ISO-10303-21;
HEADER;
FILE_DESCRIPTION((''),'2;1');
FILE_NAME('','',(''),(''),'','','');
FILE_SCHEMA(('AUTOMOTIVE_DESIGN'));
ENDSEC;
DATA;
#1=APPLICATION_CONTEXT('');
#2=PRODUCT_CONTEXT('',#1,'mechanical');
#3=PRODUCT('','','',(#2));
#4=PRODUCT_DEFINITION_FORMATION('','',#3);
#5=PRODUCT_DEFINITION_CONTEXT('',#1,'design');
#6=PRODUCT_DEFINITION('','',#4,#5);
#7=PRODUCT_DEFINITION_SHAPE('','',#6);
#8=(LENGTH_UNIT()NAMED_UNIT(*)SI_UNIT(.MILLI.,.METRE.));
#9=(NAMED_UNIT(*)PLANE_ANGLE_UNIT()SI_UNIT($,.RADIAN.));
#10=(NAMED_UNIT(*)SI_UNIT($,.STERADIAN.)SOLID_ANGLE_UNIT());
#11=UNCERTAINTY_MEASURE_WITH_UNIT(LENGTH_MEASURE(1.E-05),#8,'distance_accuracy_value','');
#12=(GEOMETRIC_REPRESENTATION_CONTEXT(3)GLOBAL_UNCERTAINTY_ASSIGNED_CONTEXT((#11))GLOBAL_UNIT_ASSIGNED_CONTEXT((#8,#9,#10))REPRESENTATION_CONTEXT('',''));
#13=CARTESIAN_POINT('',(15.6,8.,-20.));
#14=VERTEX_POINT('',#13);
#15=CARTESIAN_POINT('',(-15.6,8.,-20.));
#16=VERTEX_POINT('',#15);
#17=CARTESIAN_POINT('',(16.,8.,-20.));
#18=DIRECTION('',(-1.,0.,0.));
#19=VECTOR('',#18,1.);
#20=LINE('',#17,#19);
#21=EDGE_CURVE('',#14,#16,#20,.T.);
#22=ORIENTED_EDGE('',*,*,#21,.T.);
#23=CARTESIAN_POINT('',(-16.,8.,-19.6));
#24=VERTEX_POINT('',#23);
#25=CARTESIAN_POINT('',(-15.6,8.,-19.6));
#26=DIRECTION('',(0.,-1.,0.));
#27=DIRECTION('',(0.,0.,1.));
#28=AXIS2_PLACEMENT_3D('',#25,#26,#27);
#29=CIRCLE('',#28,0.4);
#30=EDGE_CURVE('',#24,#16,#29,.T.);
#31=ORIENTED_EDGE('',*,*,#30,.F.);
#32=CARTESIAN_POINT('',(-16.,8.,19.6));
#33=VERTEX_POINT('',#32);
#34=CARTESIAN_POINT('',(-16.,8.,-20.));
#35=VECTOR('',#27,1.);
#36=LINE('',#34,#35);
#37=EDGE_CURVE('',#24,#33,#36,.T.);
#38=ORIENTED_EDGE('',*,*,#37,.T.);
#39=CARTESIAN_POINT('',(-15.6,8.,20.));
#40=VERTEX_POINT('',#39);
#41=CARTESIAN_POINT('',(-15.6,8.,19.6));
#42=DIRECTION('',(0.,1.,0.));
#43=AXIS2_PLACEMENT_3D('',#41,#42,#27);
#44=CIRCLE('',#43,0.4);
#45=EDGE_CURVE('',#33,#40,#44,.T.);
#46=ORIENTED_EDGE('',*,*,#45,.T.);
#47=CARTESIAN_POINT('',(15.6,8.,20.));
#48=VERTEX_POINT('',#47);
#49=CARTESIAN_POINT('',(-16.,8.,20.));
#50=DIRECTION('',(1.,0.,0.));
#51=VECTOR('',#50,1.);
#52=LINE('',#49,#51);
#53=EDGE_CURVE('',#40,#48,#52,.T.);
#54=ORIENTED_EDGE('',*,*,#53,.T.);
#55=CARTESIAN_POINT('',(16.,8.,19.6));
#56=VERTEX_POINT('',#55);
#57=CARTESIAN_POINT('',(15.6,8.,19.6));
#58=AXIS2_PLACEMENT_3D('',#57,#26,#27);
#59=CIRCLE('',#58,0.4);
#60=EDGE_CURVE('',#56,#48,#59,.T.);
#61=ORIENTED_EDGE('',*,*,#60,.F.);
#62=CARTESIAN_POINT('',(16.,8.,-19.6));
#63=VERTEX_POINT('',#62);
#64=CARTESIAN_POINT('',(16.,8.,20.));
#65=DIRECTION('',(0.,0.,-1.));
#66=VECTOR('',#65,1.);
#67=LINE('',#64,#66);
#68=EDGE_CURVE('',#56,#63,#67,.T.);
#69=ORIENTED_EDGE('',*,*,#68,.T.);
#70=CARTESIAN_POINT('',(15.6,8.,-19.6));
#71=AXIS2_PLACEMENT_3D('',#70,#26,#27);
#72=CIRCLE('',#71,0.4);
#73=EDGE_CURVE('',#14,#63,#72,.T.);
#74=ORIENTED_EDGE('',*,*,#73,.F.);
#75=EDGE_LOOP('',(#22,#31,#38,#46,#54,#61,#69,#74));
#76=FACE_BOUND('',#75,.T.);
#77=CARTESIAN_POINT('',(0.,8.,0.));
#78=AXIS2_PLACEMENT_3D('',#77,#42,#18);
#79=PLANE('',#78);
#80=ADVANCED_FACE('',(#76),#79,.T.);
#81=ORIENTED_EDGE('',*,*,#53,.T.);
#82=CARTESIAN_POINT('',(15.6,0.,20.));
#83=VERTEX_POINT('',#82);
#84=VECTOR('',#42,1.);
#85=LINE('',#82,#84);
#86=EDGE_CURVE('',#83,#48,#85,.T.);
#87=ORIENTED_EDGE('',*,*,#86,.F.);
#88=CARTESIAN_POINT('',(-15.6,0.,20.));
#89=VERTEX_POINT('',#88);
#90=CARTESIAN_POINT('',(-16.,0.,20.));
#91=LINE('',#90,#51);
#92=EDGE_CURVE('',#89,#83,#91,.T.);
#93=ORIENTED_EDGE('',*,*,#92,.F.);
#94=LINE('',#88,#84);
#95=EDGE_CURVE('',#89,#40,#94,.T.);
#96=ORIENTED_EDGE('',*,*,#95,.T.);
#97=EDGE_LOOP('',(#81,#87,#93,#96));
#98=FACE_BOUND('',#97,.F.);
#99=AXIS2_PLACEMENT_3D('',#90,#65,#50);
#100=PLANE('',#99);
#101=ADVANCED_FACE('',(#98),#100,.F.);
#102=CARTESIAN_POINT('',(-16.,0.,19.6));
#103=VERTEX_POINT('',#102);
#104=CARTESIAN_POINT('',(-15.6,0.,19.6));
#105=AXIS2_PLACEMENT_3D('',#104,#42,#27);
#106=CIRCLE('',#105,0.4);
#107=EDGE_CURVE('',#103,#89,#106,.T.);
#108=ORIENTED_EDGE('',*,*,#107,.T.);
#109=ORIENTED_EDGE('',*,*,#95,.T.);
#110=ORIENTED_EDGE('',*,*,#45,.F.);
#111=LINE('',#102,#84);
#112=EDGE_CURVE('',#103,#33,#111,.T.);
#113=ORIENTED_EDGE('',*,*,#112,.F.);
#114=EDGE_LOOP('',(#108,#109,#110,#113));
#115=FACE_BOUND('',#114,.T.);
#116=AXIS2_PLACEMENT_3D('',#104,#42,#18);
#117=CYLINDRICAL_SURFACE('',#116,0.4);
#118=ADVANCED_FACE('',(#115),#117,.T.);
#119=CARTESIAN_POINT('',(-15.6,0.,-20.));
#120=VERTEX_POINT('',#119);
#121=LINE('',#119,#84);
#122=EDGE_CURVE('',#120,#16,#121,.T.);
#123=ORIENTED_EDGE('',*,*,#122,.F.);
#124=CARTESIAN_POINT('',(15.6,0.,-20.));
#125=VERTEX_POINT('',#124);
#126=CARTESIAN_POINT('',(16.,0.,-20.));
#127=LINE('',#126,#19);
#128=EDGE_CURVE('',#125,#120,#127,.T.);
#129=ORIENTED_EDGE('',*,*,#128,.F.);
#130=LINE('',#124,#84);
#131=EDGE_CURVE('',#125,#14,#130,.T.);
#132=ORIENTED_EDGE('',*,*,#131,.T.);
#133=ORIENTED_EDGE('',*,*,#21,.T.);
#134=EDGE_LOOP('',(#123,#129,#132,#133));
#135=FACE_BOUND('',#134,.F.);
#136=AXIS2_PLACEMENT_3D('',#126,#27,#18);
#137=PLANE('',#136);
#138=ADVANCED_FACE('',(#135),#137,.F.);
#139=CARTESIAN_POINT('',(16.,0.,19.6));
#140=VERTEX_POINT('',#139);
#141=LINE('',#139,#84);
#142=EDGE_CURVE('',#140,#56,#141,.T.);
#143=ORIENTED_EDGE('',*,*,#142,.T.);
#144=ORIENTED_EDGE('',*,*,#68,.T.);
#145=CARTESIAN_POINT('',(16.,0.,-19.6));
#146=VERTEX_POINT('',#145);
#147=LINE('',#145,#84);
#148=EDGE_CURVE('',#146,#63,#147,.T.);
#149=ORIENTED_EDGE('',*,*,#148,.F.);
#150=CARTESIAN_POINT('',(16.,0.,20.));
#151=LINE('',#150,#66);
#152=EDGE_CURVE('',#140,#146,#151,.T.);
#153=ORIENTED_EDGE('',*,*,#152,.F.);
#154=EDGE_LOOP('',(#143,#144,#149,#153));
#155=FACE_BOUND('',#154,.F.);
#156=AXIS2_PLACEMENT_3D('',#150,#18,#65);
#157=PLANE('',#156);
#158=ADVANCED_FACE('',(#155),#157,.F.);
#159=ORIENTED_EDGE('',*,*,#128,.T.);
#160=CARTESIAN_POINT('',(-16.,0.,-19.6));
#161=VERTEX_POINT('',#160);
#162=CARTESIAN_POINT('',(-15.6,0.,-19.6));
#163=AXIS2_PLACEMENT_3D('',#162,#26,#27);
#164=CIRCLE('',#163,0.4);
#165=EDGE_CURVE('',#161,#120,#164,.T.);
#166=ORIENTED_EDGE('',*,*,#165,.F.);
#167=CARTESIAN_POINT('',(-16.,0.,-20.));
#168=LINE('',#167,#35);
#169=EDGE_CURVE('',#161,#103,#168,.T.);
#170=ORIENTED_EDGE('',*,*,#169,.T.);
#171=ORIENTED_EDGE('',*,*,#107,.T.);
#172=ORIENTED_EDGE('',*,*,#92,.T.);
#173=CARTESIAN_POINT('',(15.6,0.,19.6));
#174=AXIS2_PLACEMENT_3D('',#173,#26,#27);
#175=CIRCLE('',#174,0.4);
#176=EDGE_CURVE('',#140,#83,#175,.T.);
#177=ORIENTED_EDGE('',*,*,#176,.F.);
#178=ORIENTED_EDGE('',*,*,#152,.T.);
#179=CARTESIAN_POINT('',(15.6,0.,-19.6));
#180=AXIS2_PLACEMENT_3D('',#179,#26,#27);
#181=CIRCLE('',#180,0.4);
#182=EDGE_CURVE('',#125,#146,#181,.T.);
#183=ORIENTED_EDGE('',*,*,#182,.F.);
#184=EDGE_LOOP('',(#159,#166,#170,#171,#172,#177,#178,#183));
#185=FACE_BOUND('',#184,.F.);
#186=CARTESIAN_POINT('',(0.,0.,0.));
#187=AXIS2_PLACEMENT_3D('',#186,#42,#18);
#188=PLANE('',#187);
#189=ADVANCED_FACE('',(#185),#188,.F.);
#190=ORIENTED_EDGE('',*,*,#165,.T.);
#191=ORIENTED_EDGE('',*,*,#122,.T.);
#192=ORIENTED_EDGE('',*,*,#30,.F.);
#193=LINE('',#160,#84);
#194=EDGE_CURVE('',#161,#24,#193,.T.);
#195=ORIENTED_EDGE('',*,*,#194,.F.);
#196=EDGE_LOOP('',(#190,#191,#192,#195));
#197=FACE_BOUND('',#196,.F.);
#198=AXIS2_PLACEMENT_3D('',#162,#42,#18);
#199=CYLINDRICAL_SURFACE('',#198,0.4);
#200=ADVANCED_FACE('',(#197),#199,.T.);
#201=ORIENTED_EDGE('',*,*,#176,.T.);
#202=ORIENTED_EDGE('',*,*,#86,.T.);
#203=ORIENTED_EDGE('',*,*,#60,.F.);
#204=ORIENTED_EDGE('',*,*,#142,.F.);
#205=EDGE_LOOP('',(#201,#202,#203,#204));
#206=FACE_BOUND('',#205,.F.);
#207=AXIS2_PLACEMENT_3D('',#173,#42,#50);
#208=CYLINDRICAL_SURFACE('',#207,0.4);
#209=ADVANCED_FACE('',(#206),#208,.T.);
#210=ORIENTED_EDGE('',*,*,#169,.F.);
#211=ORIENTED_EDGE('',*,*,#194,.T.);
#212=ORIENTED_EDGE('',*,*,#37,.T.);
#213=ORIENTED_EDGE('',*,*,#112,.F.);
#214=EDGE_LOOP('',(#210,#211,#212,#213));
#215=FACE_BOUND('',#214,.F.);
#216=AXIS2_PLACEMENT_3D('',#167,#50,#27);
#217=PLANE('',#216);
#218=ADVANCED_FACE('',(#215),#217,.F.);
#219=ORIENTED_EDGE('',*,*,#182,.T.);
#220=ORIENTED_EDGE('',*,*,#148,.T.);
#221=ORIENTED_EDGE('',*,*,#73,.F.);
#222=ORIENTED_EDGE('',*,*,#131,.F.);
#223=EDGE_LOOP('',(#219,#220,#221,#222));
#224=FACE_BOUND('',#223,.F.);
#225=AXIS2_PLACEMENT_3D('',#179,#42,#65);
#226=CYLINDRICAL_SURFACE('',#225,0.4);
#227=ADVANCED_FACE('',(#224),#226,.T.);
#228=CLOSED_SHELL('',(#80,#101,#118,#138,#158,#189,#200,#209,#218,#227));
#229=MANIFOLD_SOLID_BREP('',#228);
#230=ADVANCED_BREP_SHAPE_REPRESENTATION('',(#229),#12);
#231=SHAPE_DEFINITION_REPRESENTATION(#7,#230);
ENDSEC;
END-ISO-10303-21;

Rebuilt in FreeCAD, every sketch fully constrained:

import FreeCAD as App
import Part
import Sketcher

V = App.Vector


def edges_at(feature, points):
    """Names of the edges that pass closest to the given points."""
    edges = feature.Shape.Edges
    near = lambda p: min(range(len(edges)), key=lambda i: edges[i].distToShape(Part.Vertex(*p))[0])
    return sorted({f"Edge{near(p) + 1}" for p in points})

doc = App.newDocument("Part")
body = doc.addObject("PartDesign::Body", "Body")

# Sketch on XZ plane
sketch1 = doc.addObject("Sketcher::SketchObject", "Sketch")
body.addObject(sketch1)
sketch1.AttachmentSupport = (doc.XZ_Plane, [""])
sketch1.MapMode = "FlatFace"
sketch1.addGeometry([
    Part.LineSegment(V(-16, -20, 0), V(-16, 20, 0)),
    Part.LineSegment(V(-16, 20, 0), V(16, 20, 0)),
    Part.LineSegment(V(16, 20, 0), V(16, -20, 0)),
    Part.LineSegment(V(16, -20, 0), V(-16, -20, 0)),
], False)
sketch1.addConstraint([
    Sketcher.Constraint("Coincident", 0, 2, 1, 1),
    Sketcher.Constraint("Coincident", 1, 2, 2, 1),
    Sketcher.Constraint("Coincident", 2, 2, 3, 1),
    Sketcher.Constraint("Coincident", 3, 2, 0, 1),
    Sketcher.Constraint("Vertical", 0),
    Sketcher.Constraint("Horizontal", 1),
    Sketcher.Constraint("Vertical", 2),
    Sketcher.Constraint("Horizontal", 3),
    Sketcher.Constraint("Symmetric", 0, 2, 2, 2, -1, 1),
    Sketcher.Constraint("DistanceX", 1, 1, 1, 2, 32.0),
    Sketcher.Constraint("DistanceY", 0, 1, 0, 2, 40.0),
])
pad1 = doc.addObject("PartDesign::Pad", "Pad")
body.addObject(pad1)
pad1.Profile = sketch1
pad1.Length = 8
pad1.Reversed = True
doc.recompute()

fillet = doc.addObject("PartDesign::Fillet", "Fillet")
body.addObject(fillet)
fillet.Base = (pad1, edges_at(pad1, [
    (16, 4, 20),
    (-16, 4, 20),
    (-16, 4, -20),
    (16, 4, -20),
]))
fillet.Radius = 0.4

doc.recompute()
